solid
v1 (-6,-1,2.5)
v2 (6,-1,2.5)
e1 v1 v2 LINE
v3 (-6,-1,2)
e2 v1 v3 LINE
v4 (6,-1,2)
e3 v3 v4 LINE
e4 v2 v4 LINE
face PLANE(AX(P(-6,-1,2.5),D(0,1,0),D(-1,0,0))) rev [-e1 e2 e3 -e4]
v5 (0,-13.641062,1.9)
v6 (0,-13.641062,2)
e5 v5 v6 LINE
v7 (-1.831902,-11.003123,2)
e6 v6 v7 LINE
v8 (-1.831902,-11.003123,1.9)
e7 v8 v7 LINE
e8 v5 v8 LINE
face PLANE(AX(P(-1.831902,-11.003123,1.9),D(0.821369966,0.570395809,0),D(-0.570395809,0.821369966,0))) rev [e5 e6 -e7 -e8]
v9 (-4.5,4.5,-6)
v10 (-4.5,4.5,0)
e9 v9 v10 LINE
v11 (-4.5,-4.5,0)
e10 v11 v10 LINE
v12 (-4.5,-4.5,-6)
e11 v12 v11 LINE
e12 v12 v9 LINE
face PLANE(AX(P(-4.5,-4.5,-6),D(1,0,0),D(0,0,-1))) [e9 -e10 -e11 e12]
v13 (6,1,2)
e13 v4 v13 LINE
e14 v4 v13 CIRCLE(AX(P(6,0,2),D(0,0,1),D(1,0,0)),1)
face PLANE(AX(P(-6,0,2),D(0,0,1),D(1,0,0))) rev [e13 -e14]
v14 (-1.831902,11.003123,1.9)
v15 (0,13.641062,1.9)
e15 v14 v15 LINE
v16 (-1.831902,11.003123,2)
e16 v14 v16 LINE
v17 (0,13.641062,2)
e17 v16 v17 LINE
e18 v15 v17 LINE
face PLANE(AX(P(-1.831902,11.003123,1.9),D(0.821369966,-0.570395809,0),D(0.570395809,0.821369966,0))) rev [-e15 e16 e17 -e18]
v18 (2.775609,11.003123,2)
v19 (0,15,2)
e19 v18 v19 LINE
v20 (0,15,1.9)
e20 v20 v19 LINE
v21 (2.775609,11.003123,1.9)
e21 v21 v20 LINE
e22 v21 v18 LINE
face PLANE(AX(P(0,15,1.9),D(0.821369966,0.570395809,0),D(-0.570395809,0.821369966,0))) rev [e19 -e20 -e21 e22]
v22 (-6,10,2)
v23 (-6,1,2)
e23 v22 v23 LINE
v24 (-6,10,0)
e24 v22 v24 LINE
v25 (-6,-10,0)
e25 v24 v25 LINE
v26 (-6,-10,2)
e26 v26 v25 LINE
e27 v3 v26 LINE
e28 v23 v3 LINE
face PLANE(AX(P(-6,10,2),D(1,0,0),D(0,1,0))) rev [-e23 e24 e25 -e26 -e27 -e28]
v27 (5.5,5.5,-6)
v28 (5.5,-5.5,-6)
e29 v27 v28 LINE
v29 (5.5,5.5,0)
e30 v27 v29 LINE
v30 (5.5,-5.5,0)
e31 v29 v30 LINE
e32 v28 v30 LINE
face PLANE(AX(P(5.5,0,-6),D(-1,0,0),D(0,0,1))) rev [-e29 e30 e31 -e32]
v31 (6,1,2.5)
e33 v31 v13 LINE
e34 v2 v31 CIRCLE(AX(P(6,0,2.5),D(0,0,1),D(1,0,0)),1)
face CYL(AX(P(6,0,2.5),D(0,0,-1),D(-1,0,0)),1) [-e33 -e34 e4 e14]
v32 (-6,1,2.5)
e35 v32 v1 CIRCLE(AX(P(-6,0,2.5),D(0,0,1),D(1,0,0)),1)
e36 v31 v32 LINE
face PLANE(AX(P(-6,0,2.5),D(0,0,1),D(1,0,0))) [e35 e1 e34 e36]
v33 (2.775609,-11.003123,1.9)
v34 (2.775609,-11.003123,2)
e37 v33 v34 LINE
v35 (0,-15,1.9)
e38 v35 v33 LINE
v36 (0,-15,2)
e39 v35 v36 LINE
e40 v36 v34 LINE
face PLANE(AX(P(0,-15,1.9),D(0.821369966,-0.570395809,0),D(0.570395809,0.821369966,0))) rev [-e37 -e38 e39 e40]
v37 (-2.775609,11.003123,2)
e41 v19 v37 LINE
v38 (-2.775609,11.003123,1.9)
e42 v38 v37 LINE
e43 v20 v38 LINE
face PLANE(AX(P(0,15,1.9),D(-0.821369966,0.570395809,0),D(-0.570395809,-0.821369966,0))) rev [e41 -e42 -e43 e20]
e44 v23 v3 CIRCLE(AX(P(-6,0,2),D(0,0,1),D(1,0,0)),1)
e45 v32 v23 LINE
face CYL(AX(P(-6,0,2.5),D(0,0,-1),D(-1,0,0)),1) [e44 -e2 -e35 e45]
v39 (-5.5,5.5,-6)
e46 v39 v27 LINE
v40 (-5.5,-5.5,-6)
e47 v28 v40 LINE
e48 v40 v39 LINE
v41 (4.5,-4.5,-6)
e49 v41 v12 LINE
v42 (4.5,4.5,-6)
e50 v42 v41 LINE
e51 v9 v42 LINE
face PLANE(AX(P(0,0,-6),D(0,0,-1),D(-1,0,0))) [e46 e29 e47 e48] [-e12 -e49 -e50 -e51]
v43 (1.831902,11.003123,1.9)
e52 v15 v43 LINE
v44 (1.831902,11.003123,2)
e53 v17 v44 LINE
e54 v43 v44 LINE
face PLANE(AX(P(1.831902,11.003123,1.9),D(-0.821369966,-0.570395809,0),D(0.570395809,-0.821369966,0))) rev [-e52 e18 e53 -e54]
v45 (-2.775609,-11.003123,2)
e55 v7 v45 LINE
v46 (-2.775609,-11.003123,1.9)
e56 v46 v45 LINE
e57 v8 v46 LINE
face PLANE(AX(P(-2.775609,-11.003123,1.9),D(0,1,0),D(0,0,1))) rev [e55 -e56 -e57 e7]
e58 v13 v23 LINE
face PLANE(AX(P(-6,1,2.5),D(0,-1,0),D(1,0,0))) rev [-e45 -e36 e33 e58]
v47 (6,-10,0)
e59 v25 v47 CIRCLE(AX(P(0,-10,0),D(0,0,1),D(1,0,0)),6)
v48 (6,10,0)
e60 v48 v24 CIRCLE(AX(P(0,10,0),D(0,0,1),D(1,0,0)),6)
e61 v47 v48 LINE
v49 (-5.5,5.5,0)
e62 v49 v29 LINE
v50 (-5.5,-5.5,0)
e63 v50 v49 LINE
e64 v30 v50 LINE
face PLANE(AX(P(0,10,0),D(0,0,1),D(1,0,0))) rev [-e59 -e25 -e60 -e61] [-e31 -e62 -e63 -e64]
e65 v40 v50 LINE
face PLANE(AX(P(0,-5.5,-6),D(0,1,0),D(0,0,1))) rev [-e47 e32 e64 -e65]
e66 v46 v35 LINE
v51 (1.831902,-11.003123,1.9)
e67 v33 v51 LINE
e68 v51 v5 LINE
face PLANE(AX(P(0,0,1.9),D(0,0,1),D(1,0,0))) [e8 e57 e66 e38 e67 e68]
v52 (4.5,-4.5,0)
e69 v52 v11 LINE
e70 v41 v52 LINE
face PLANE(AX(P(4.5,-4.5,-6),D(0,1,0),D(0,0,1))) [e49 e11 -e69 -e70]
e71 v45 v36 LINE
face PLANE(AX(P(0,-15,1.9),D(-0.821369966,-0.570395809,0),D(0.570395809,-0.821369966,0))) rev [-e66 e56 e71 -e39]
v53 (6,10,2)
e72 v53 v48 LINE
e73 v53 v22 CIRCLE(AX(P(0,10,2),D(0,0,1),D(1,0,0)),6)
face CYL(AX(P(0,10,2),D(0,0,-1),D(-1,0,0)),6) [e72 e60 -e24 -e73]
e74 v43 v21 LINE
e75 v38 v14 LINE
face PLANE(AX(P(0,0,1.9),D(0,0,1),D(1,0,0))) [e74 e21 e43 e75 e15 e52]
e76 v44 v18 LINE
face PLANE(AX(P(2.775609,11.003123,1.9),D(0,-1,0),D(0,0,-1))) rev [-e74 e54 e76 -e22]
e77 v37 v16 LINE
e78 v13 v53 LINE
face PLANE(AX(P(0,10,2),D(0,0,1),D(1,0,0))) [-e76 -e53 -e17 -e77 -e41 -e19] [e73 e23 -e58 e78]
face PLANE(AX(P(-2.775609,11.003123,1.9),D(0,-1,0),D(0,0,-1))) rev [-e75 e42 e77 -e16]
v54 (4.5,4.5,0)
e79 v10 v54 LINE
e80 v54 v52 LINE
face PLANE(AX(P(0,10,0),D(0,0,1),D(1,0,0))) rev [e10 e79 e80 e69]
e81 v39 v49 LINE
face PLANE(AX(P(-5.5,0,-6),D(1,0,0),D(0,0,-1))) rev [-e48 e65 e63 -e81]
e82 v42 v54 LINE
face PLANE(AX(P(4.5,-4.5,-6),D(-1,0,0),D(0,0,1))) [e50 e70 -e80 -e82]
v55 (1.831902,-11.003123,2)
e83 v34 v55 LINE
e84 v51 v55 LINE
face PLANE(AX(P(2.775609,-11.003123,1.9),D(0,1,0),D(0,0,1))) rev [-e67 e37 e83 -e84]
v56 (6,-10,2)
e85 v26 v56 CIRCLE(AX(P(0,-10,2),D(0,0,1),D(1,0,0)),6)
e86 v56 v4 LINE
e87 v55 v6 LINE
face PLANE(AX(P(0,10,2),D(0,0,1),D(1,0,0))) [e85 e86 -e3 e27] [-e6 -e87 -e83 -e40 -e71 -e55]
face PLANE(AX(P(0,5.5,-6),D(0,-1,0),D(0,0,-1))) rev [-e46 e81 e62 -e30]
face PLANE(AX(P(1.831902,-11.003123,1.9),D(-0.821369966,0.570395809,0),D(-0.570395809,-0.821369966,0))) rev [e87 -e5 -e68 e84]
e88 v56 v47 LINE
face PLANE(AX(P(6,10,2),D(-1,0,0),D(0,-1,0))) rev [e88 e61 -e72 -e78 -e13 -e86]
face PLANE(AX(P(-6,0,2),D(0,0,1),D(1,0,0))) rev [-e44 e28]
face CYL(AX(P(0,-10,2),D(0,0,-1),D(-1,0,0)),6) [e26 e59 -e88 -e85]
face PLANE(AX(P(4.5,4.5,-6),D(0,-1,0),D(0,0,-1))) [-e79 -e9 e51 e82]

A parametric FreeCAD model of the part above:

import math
import FreeCAD as App
import Part
import Sketcher
Q = App.Units.Quantity

doc = App.newDocument("Part")
body = doc.addObject("PartDesign::Body", "Body")

# Sketch on XY plane
sketch1 = body.newObject("Sketcher::SketchObject", "Sketch")
sketch1.AttachmentSupport = (doc.getObject("XY_Plane"), [""])
sketch1.MapMode = "FlatFace"
sketch1.addGeometry([
    Part.LineSegment(App.Vector(6, -10, 0), App.Vector(6, 10, 0)),
    Part.ArcOfCircle(Part.Circle(App.Vector(0, 10, 0), App.Vector(0, 0, 1), 6), math.radians(0), math.radians(180)),
    Part.LineSegment(App.Vector(-6, 10, 0), App.Vector(-6, -10, 0)),
    Part.ArcOfCircle(Part.Circle(App.Vector(0, -10, 0), App.Vector(0, 0, 1), 6), math.radians(180), math.radians(360)),
], False)
sketch1.addConstraint([
    Sketcher.Constraint("Tangent", 0, 2, 1, 1),
    Sketcher.Constraint("Tangent", 1, 2, 2, 1),
    Sketcher.Constraint("Tangent", 2, 2, 3, 1),
    Sketcher.Constraint("Tangent", 3, 2, 0, 1),
    Sketcher.Constraint("Vertical", 0),
    Sketcher.Constraint("Vertical", 2),
    Sketcher.Constraint("Symmetric", 1, 3, 3, 3, -1, 1),
    Sketcher.Constraint("Radius", 1, Q("6 mm")),
    Sketcher.Constraint("DistanceY", 0, 1, 0, 2, Q("20 mm")),
])
pad1 = body.newObject("PartDesign::Pad", "Pad")
pad1.Profile = sketch1
pad1.Length = 2

# Sketch on XY plane
sketch2 = body.newObject("Sketcher::SketchObject", "Sketch001")
sketch2.AttachmentSupport = (doc.getObject("XY_Plane"), [""])
sketch2.MapMode = "FlatFace"
sketch2.AttachmentOffset = App.Placement(App.Vector(0, 0, 2), App.Rotation())
sketch2.addGeometry([
    Part.LineSegment(App.Vector(6, 1, 0), App.Vector(-6, 1, 0)),
    Part.ArcOfCircle(Part.Circle(App.Vector(-6, 0, 0), App.Vector(0, 0, 1), 1), math.radians(90), math.radians(270)),
    Part.LineSegment(App.Vector(-6, -1, 0), App.Vector(6, -1, 0)),
    Part.ArcOfCircle(Part.Circle(App.Vector(6, 0, 0), App.Vector(0, 0, 1), 1), math.radians(-90), math.radians(90)),
], False)
sketch2.addConstraint([
    Sketcher.Constraint("Tangent", 0, 2, 1, 1),
    Sketcher.Constraint("Tangent", 1, 2, 2, 1),
    Sketcher.Constraint("Tangent", 2, 2, 3, 1),
    Sketcher.Constraint("Tangent", 3, 2, 0, 1),
    Sketcher.Constraint("Horizontal", 0),
    Sketcher.Constraint("Horizontal", 2),
    Sketcher.Constraint("Symmetric", 1, 3, 3, 3, -1, 1),
    Sketcher.Constraint("Radius", 1, Q("1 mm")),
    Sketcher.Constraint("DistanceX", 0, 2, 0, 1, Q("12 mm")),
])
pad2 = body.newObject("PartDesign::Pad", "Pad001")
pad2.Profile = sketch2
pad2.Length = 0.5

# Sketch on XY plane
sketch3 = body.newObject("Sketcher::SketchObject", "Sketch002")
sketch3.AttachmentSupport = (doc.getObject("XY_Plane"), [""])
sketch3.MapMode = "FlatFace"
sketch3.AttachmentOffset = App.Placement(App.Vector(0, 0, 2), App.Rotation())
sketch3.addGeometry([
    Part.LineSegment(App.Vector(0, 15, 0), App.Vector(-2.8, 11, 0)),  # 0
    Part.LineSegment(App.Vector(-2.8, 11, 0), App.Vector(-1.8, 11, 0)),  # 1
    Part.LineSegment(App.Vector(-1.8, 11, 0), App.Vector(0, 13.6, 0)),  # 2
    Part.LineSegment(App.Vector(0, 13.6, 0), App.Vector(1.8, 11, 0)),  # 3
    Part.LineSegment(App.Vector(1.8, 11, 0), App.Vector(2.8, 11, 0)),  # 4
    Part.LineSegment(App.Vector(2.8, 11, 0), App.Vector(0, 15, 0)),  # 5
    Part.LineSegment(App.Vector(-1.8, -11, 0), App.Vector(-2.8, -11, 0)),  # 6
    Part.LineSegment(App.Vector(-2.8, -11, 0), App.Vector(0, -15, 0)),  # 7
    Part.LineSegment(App.Vector(0, -15, 0), App.Vector(2.8, -11, 0)),  # 8
    Part.LineSegment(App.Vector(2.8, -11, 0), App.Vector(1.8, -11, 0)),  # 9
    Part.LineSegment(App.Vector(1.8, -11, 0), App.Vector(0, -13.6, 0)),  # 10
    Part.LineSegment(App.Vector(0, -13.6, 0), App.Vector(-1.8, -11, 0)),  # 11
], False)
sketch3.addConstraint([
    Sketcher.Constraint("Coincident", 0, 2, 1, 1),
    Sketcher.Constraint("Coincident", 1, 2, 2, 1),
    Sketcher.Constraint("Coincident", 2, 2, 3, 1),
    Sketcher.Constraint("Coincident", 3, 2, 4, 1),
    Sketcher.Constraint("Coincident", 4, 2, 5, 1),
    Sketcher.Constraint("Coincident", 5, 2, 0, 1),
    Sketcher.Constraint("Coincident", 6, 2, 7, 1),
    Sketcher.Constraint("Coincident", 7, 2, 8, 1),
    Sketcher.Constraint("Coincident", 8, 2, 9, 1),
    Sketcher.Constraint("Coincident", 9, 2, 10, 1),
    Sketcher.Constraint("Coincident", 10, 2, 11, 1),
    Sketcher.Constraint("Coincident", 11, 2, 6, 1),
    Sketcher.Constraint("Horizontal", 1),
    Sketcher.Constraint("Horizontal", 4),
    Sketcher.Constraint("Horizontal", 6),
    Sketcher.Constraint("Horizontal", 9),
    Sketcher.Constraint("Symmetric", 4, 2, 6, 2, -1, 1),
    Sketcher.Constraint("Symmetric", 5, 2, 7, 2, -1, 1),
    Sketcher.Constraint("Symmetric", 0, 2, 8, 2, -1, 1),
    Sketcher.Constraint("Symmetric", 2, 2, 10, 2, -1, 1),
    Sketcher.Constraint("Symmetric", 1, 2, 3, 2, -2),
    Sketcher.Constraint("PointOnObject", 2, 2, -2),
    Sketcher.Constraint("PointOnObject", 5, 2, -2),
    Sketcher.Constraint("Parallel", 0, 2),
    Sketcher.Constraint("Parallel", 3, 5),
    Sketcher.Constraint("Parallel", 8, 10),
    Sketcher.Constraint("Parallel", 7, 11),
    Sketcher.Constraint("DistanceY", -1, 1, 5, 2, Q("15 mm")),
    Sketcher.Constraint("Distance", 0, Q("4.866111 mm")),
    Sketcher.Constraint("DistanceX", 1, 1, 1, 2, Q("0.943707 mm")),
    Sketcher.Constraint("DistanceX", 0, 2, -1, 1, Q("2.775609 mm")),
])
pocket1 = body.newObject("PartDesign::Pocket", "Pocket")
pocket1.Profile = sketch3
pocket1.Length = 0.1

# Sketch on XY plane
sketch4 = body.newObject("Sketcher::SketchObject", "Sketch003")
sketch4.AttachmentSupport = (doc.getObject("XY_Plane"), [""])
sketch4.MapMode = "FlatFace"
sketch4.addGeometry([
    Part.LineSegment(App.Vector(6, 6, 0), App.Vector(6, -6, 0)),  # 0
    Part.LineSegment(App.Vector(6, -6, 0), App.Vector(-6, -6, 0)),  # 1
    Part.LineSegment(App.Vector(-6, -6, 0), App.Vector(-6, 6, 0)),  # 2
    Part.LineSegment(App.Vector(-6, 6, 0), App.Vector(6, 6, 0)),  # 3
    Part.LineSegment(App.Vector(-4, -4, 0), App.Vector(4, -4, 0)),  # 4
    Part.LineSegment(App.Vector(4, -4, 0), App.Vector(4, 4, 0)),  # 5
    Part.LineSegment(App.Vector(4, 4, 0), App.Vector(-4, 4, 0)),  # 6
    Part.LineSegment(App.Vector(-4, 4, 0), App.Vector(-4, -4, 0)),  # 7
], False)
sketch4.addConstraint([
    Sketcher.Constraint("Coincident", 0, 2, 1, 1),
    Sketcher.Constraint("Coincident", 1, 2, 2, 1),
    Sketcher.Constraint("Coincident", 2, 2, 3, 1),
    Sketcher.Constraint("Coincident", 3, 2, 0, 1),
    Sketcher.Constraint("Coincident", 4, 2, 5, 1),
    Sketcher.Constraint("Coincident", 5, 2, 6, 1),
    Sketcher.Constraint("Coincident", 6, 2, 7, 1),
    Sketcher.Constraint("Coincident", 7, 2, 4, 1),
    Sketcher.Constraint("Vertical", 0),
    Sketcher.Constraint("Horizontal", 1),
    Sketcher.Constraint("Vertical", 2),
    Sketcher.Constraint("Horizontal", 3),
    Sketcher.Constraint("Horizontal", 4),
    Sketcher.Constraint("Vertical", 5),
    Sketcher.Constraint("Horizontal", 6),
    Sketcher.Constraint("Vertical", 7),
    Sketcher.Constraint("Symmetric", 0, 2, 2, 2, -1, 1),
    Sketcher.Constraint("Symmetric", 4, 2, 6, 2, -1, 1),
    Sketcher.Constraint("Equal", 3, 0),
    Sketcher.Constraint("Equal", 6, 5),
    Sketcher.Constraint("DistanceX", 1, 2, 1, 1, Q("11 mm")),
    Sketcher.Constraint("DistanceX", 4, 1, 4, 2, Q("9 mm")),
])
pad3 = body.newObject("PartDesign::Pad", "Pad002")
pad3.Profile = sketch4
pad3.Length = 6
pad3.Reversed = True

doc.recompute()
